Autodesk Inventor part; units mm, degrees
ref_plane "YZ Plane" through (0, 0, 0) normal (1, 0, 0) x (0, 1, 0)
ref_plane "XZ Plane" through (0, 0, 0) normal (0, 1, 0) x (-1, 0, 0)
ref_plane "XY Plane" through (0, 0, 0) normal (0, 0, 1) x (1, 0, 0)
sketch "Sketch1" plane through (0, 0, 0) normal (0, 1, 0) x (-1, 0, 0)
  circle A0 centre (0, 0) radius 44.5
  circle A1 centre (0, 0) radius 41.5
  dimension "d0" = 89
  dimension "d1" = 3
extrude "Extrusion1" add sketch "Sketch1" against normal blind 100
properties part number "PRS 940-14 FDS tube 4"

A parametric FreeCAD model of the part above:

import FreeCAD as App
import Part
import Sketcher
from FreeCAD import Vector
Q = App.Units.Quantity

doc = App.newDocument("Part")
params = doc.addObject("Spreadsheet::Sheet", "Params")
for row, (alias, value) in enumerate([
    ("sketch1_diameter", "89 mm"),
    ("sketch1_diameter2", "83 mm"),
    ("pad1_length", "100 mm"),
], start=1):
    params.set(f"A{row}", alias)
    params.set(f"B{row}", "=" + value)
    params.setAlias(f"B{row}", alias)

body = doc.addObject("PartDesign::Body", "Body")

# Sketch on XZ plane
sketch1 = body.newObject("Sketcher::SketchObject", "Sketch")
sketch1.AttachmentSupport = (doc.getObject("XZ_Plane"), [""])
sketch1.MapMode = "FlatFace"
sketch1.addGeometry([
    Part.Circle(Vector(0, 0, 0), Vector(0, 0, 1), 44),
    Part.Circle(Vector(0, 0, 0), Vector(0, 0, 1), 42),
], False)
sketch1.addConstraint([
    Sketcher.Constraint("Coincident", 0, 3, -1, 1),
    Sketcher.Constraint("Coincident", 1, 3, -1, 1),
    Sketcher.Constraint("Diameter", 0, Q("89 mm")),
    Sketcher.Constraint("Diameter", 1, Q("83 mm")),
])
sketch1.setExpression("Constraints[2]", "Params.sketch1_diameter")
sketch1.setExpression("Constraints[3]", "Params.sketch1_diameter2")
pad1 = body.newObject("PartDesign::Pad", "Pad")
pad1.Profile = sketch1
pad1.setExpression("Length", "Params.pad1_length")

doc.recompute()
